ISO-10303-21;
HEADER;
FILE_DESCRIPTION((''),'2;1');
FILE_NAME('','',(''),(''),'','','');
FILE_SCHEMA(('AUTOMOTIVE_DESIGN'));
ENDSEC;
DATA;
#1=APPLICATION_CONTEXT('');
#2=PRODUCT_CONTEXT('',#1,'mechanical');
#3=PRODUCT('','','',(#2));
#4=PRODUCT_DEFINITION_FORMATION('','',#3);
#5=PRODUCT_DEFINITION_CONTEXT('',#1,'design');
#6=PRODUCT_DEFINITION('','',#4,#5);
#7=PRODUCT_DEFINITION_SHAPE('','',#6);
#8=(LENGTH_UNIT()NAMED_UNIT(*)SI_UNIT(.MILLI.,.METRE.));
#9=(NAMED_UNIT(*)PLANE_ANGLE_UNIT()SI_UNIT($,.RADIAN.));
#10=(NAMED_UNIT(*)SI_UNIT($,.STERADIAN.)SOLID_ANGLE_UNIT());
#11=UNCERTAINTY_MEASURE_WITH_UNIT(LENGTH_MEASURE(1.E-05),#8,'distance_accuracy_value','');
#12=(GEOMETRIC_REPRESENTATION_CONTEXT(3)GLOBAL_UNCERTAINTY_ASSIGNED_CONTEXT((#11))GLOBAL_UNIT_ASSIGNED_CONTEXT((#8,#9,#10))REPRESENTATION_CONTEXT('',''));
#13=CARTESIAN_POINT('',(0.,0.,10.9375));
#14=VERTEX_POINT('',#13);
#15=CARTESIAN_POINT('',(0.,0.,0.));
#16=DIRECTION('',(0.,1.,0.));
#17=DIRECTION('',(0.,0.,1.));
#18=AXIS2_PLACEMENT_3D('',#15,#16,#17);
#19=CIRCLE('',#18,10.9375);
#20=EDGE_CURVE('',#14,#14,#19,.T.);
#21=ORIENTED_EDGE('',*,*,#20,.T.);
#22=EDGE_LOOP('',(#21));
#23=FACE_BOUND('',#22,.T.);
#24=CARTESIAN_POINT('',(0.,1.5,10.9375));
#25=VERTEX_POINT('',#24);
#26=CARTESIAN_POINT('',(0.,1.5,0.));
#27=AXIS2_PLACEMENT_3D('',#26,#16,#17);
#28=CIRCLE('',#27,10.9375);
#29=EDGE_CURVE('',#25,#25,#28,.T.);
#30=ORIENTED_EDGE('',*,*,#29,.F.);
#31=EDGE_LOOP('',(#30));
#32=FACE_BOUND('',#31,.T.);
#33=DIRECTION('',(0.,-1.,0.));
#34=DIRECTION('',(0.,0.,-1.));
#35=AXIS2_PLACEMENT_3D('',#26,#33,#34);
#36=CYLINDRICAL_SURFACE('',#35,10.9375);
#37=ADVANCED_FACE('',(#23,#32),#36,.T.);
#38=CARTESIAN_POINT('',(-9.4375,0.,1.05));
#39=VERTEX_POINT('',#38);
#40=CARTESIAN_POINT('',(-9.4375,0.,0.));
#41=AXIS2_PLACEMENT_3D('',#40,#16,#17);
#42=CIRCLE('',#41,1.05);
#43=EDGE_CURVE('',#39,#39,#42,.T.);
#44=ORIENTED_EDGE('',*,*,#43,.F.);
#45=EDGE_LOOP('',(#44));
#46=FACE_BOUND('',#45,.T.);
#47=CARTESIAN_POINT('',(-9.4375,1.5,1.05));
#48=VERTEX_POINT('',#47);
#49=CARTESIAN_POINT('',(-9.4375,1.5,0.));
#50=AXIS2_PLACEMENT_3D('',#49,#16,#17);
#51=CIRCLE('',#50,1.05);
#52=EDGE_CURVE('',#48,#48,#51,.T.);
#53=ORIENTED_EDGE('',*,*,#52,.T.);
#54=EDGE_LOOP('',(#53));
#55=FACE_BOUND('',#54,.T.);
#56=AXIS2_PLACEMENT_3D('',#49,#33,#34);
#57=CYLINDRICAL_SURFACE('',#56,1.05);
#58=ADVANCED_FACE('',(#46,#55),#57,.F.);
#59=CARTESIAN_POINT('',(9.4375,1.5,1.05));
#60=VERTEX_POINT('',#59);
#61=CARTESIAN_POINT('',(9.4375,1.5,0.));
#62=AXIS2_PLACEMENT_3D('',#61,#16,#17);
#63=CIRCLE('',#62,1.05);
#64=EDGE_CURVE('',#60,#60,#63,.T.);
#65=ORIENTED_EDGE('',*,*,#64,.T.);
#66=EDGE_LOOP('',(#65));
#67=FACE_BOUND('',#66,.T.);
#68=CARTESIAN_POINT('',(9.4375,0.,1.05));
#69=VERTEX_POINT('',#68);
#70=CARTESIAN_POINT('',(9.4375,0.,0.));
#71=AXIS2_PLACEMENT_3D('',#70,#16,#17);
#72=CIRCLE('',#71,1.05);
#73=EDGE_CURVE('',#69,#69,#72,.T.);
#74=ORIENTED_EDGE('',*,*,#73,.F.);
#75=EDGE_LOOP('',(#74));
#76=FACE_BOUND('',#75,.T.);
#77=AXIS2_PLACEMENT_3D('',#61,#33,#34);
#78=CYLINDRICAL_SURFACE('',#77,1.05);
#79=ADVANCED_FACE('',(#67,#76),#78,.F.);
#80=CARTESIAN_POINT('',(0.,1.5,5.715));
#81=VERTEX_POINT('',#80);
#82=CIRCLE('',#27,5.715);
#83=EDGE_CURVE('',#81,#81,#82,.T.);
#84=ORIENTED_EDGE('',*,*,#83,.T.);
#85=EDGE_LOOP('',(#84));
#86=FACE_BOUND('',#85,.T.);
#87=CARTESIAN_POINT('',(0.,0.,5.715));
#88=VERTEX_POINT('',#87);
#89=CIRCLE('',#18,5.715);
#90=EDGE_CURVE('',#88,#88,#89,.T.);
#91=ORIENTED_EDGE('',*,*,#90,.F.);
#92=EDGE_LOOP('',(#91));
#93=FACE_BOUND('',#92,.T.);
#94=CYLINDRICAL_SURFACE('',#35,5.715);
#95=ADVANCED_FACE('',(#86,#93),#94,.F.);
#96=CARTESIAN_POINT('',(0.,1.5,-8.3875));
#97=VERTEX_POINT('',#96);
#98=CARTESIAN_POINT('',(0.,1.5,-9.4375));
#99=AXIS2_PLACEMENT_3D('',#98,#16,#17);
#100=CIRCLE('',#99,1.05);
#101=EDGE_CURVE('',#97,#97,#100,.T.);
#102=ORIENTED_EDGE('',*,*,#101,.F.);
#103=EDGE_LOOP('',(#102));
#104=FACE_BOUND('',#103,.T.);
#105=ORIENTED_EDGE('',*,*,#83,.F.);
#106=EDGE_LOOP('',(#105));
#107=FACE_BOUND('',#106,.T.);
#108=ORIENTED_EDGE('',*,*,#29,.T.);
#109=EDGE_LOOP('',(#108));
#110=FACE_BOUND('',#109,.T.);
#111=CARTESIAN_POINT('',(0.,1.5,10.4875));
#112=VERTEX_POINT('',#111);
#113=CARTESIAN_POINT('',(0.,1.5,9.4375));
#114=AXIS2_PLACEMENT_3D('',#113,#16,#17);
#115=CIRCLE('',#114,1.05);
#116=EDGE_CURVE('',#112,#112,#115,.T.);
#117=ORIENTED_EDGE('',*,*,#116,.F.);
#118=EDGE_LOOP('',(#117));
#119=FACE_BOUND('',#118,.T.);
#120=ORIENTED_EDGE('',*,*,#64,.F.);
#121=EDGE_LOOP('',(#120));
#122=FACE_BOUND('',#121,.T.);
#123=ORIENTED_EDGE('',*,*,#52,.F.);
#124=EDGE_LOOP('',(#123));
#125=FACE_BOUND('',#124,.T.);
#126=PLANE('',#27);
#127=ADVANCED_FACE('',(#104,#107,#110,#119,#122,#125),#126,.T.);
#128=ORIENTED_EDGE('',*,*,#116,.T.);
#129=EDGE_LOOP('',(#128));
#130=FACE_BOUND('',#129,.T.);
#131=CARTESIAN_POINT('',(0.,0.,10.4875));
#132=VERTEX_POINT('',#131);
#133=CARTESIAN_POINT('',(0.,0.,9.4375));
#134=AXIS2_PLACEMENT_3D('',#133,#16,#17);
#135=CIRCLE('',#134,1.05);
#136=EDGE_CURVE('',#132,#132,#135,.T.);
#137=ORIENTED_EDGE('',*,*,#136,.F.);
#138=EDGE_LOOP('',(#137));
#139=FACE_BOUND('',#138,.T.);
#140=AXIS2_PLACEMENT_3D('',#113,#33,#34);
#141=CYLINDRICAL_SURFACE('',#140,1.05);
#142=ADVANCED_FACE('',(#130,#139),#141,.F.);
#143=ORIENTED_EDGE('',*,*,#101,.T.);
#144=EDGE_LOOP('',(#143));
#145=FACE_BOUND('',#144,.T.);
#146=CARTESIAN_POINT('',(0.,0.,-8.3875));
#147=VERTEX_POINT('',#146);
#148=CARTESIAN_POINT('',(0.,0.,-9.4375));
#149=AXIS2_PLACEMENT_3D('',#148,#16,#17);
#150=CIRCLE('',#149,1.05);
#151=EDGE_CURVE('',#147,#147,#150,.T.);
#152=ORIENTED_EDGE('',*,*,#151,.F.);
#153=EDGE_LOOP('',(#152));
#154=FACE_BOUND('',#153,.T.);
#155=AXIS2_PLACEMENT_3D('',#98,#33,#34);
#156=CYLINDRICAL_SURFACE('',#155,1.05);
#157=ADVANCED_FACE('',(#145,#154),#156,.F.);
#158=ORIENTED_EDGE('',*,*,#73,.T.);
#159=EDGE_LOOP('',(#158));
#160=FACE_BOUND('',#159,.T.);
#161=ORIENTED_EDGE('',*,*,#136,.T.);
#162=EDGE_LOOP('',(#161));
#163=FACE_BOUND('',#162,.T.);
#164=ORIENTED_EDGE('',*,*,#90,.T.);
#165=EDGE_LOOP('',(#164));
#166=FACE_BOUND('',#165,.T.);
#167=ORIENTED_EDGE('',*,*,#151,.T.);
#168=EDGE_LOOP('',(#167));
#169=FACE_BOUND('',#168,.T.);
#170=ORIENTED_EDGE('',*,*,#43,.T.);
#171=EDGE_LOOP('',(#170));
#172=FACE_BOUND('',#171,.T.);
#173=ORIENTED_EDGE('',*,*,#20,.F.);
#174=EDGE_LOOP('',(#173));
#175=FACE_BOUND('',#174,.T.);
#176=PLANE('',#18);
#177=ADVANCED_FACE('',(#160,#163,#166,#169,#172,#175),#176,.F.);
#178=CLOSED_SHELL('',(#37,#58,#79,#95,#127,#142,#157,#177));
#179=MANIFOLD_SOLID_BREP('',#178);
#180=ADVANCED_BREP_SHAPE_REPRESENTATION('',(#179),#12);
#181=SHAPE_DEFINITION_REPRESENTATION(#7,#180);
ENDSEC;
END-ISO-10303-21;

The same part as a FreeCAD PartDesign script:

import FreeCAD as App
import Part
import Sketcher

V = App.Vector
Q = App.Units.Quantity

doc = App.newDocument("Part")
body = doc.addObject("PartDesign::Body", "Body")

sketch1 = body.newObject("Sketcher::SketchObject", "Sketch")
sketch1.AttachmentSupport = (doc.getObject("XZ_Plane"), [""])
sketch1.MapMode = "FlatFace"
sketch1.addGeometry([
    Part.Circle(V(0, 0, 0), V(0, 0, 1), 10.9),
    Part.Circle(V(0, -9.4, 0), V(0, 0, 1), 1.1),
    Part.Circle(V(-9.4, 0, 0), V(0, 0, 1), 1.1),
    Part.Circle(V(9.4, 0, 0), V(0, 0, 1), 1.1),
    Part.Circle(V(0, 0, 0), V(0, 0, 1), 5.7),
    Part.Circle(V(0, 9.4, 0), V(0, 0, 1), 1.1),
], False)
sketch1.addConstraint([
    Sketcher.Constraint("Coincident", 0, 3, -1, 1),
    Sketcher.Constraint("Coincident", 4, 3, -1, 1),
    Sketcher.Constraint("Equal", 1, 2),
    Sketcher.Constraint("Equal", 2, 3),
    Sketcher.Constraint("Equal", 3, 5),
    Sketcher.Constraint("Symmetric", 2, 3, 3, 3, -1, 1),
    Sketcher.Constraint("Symmetric", 1, 3, 5, 3, -1, 1),
    Sketcher.Constraint("PointOnObject", 1, 3, -2),
    Sketcher.Constraint("PointOnObject", 2, 3, -1),
    Sketcher.Constraint("Diameter", 1, Q("2.1 mm")),
    Sketcher.Constraint("Diameter", 4, Q("11.43 mm")),
    Sketcher.Constraint("Diameter", 0, Q("21.875 mm")),
    Sketcher.Constraint("DistanceX", 2, 3, 3, 3, Q("18.875 mm")),
    Sketcher.Constraint("DistanceY", 1, 3, 5, 3, Q("18.875 mm")),
])
pad1 = body.newObject("PartDesign::Pad", "Pad")
pad1.Profile = sketch1
pad1.Length = 1.5
pad1.Reversed = True

doc.recompute()
